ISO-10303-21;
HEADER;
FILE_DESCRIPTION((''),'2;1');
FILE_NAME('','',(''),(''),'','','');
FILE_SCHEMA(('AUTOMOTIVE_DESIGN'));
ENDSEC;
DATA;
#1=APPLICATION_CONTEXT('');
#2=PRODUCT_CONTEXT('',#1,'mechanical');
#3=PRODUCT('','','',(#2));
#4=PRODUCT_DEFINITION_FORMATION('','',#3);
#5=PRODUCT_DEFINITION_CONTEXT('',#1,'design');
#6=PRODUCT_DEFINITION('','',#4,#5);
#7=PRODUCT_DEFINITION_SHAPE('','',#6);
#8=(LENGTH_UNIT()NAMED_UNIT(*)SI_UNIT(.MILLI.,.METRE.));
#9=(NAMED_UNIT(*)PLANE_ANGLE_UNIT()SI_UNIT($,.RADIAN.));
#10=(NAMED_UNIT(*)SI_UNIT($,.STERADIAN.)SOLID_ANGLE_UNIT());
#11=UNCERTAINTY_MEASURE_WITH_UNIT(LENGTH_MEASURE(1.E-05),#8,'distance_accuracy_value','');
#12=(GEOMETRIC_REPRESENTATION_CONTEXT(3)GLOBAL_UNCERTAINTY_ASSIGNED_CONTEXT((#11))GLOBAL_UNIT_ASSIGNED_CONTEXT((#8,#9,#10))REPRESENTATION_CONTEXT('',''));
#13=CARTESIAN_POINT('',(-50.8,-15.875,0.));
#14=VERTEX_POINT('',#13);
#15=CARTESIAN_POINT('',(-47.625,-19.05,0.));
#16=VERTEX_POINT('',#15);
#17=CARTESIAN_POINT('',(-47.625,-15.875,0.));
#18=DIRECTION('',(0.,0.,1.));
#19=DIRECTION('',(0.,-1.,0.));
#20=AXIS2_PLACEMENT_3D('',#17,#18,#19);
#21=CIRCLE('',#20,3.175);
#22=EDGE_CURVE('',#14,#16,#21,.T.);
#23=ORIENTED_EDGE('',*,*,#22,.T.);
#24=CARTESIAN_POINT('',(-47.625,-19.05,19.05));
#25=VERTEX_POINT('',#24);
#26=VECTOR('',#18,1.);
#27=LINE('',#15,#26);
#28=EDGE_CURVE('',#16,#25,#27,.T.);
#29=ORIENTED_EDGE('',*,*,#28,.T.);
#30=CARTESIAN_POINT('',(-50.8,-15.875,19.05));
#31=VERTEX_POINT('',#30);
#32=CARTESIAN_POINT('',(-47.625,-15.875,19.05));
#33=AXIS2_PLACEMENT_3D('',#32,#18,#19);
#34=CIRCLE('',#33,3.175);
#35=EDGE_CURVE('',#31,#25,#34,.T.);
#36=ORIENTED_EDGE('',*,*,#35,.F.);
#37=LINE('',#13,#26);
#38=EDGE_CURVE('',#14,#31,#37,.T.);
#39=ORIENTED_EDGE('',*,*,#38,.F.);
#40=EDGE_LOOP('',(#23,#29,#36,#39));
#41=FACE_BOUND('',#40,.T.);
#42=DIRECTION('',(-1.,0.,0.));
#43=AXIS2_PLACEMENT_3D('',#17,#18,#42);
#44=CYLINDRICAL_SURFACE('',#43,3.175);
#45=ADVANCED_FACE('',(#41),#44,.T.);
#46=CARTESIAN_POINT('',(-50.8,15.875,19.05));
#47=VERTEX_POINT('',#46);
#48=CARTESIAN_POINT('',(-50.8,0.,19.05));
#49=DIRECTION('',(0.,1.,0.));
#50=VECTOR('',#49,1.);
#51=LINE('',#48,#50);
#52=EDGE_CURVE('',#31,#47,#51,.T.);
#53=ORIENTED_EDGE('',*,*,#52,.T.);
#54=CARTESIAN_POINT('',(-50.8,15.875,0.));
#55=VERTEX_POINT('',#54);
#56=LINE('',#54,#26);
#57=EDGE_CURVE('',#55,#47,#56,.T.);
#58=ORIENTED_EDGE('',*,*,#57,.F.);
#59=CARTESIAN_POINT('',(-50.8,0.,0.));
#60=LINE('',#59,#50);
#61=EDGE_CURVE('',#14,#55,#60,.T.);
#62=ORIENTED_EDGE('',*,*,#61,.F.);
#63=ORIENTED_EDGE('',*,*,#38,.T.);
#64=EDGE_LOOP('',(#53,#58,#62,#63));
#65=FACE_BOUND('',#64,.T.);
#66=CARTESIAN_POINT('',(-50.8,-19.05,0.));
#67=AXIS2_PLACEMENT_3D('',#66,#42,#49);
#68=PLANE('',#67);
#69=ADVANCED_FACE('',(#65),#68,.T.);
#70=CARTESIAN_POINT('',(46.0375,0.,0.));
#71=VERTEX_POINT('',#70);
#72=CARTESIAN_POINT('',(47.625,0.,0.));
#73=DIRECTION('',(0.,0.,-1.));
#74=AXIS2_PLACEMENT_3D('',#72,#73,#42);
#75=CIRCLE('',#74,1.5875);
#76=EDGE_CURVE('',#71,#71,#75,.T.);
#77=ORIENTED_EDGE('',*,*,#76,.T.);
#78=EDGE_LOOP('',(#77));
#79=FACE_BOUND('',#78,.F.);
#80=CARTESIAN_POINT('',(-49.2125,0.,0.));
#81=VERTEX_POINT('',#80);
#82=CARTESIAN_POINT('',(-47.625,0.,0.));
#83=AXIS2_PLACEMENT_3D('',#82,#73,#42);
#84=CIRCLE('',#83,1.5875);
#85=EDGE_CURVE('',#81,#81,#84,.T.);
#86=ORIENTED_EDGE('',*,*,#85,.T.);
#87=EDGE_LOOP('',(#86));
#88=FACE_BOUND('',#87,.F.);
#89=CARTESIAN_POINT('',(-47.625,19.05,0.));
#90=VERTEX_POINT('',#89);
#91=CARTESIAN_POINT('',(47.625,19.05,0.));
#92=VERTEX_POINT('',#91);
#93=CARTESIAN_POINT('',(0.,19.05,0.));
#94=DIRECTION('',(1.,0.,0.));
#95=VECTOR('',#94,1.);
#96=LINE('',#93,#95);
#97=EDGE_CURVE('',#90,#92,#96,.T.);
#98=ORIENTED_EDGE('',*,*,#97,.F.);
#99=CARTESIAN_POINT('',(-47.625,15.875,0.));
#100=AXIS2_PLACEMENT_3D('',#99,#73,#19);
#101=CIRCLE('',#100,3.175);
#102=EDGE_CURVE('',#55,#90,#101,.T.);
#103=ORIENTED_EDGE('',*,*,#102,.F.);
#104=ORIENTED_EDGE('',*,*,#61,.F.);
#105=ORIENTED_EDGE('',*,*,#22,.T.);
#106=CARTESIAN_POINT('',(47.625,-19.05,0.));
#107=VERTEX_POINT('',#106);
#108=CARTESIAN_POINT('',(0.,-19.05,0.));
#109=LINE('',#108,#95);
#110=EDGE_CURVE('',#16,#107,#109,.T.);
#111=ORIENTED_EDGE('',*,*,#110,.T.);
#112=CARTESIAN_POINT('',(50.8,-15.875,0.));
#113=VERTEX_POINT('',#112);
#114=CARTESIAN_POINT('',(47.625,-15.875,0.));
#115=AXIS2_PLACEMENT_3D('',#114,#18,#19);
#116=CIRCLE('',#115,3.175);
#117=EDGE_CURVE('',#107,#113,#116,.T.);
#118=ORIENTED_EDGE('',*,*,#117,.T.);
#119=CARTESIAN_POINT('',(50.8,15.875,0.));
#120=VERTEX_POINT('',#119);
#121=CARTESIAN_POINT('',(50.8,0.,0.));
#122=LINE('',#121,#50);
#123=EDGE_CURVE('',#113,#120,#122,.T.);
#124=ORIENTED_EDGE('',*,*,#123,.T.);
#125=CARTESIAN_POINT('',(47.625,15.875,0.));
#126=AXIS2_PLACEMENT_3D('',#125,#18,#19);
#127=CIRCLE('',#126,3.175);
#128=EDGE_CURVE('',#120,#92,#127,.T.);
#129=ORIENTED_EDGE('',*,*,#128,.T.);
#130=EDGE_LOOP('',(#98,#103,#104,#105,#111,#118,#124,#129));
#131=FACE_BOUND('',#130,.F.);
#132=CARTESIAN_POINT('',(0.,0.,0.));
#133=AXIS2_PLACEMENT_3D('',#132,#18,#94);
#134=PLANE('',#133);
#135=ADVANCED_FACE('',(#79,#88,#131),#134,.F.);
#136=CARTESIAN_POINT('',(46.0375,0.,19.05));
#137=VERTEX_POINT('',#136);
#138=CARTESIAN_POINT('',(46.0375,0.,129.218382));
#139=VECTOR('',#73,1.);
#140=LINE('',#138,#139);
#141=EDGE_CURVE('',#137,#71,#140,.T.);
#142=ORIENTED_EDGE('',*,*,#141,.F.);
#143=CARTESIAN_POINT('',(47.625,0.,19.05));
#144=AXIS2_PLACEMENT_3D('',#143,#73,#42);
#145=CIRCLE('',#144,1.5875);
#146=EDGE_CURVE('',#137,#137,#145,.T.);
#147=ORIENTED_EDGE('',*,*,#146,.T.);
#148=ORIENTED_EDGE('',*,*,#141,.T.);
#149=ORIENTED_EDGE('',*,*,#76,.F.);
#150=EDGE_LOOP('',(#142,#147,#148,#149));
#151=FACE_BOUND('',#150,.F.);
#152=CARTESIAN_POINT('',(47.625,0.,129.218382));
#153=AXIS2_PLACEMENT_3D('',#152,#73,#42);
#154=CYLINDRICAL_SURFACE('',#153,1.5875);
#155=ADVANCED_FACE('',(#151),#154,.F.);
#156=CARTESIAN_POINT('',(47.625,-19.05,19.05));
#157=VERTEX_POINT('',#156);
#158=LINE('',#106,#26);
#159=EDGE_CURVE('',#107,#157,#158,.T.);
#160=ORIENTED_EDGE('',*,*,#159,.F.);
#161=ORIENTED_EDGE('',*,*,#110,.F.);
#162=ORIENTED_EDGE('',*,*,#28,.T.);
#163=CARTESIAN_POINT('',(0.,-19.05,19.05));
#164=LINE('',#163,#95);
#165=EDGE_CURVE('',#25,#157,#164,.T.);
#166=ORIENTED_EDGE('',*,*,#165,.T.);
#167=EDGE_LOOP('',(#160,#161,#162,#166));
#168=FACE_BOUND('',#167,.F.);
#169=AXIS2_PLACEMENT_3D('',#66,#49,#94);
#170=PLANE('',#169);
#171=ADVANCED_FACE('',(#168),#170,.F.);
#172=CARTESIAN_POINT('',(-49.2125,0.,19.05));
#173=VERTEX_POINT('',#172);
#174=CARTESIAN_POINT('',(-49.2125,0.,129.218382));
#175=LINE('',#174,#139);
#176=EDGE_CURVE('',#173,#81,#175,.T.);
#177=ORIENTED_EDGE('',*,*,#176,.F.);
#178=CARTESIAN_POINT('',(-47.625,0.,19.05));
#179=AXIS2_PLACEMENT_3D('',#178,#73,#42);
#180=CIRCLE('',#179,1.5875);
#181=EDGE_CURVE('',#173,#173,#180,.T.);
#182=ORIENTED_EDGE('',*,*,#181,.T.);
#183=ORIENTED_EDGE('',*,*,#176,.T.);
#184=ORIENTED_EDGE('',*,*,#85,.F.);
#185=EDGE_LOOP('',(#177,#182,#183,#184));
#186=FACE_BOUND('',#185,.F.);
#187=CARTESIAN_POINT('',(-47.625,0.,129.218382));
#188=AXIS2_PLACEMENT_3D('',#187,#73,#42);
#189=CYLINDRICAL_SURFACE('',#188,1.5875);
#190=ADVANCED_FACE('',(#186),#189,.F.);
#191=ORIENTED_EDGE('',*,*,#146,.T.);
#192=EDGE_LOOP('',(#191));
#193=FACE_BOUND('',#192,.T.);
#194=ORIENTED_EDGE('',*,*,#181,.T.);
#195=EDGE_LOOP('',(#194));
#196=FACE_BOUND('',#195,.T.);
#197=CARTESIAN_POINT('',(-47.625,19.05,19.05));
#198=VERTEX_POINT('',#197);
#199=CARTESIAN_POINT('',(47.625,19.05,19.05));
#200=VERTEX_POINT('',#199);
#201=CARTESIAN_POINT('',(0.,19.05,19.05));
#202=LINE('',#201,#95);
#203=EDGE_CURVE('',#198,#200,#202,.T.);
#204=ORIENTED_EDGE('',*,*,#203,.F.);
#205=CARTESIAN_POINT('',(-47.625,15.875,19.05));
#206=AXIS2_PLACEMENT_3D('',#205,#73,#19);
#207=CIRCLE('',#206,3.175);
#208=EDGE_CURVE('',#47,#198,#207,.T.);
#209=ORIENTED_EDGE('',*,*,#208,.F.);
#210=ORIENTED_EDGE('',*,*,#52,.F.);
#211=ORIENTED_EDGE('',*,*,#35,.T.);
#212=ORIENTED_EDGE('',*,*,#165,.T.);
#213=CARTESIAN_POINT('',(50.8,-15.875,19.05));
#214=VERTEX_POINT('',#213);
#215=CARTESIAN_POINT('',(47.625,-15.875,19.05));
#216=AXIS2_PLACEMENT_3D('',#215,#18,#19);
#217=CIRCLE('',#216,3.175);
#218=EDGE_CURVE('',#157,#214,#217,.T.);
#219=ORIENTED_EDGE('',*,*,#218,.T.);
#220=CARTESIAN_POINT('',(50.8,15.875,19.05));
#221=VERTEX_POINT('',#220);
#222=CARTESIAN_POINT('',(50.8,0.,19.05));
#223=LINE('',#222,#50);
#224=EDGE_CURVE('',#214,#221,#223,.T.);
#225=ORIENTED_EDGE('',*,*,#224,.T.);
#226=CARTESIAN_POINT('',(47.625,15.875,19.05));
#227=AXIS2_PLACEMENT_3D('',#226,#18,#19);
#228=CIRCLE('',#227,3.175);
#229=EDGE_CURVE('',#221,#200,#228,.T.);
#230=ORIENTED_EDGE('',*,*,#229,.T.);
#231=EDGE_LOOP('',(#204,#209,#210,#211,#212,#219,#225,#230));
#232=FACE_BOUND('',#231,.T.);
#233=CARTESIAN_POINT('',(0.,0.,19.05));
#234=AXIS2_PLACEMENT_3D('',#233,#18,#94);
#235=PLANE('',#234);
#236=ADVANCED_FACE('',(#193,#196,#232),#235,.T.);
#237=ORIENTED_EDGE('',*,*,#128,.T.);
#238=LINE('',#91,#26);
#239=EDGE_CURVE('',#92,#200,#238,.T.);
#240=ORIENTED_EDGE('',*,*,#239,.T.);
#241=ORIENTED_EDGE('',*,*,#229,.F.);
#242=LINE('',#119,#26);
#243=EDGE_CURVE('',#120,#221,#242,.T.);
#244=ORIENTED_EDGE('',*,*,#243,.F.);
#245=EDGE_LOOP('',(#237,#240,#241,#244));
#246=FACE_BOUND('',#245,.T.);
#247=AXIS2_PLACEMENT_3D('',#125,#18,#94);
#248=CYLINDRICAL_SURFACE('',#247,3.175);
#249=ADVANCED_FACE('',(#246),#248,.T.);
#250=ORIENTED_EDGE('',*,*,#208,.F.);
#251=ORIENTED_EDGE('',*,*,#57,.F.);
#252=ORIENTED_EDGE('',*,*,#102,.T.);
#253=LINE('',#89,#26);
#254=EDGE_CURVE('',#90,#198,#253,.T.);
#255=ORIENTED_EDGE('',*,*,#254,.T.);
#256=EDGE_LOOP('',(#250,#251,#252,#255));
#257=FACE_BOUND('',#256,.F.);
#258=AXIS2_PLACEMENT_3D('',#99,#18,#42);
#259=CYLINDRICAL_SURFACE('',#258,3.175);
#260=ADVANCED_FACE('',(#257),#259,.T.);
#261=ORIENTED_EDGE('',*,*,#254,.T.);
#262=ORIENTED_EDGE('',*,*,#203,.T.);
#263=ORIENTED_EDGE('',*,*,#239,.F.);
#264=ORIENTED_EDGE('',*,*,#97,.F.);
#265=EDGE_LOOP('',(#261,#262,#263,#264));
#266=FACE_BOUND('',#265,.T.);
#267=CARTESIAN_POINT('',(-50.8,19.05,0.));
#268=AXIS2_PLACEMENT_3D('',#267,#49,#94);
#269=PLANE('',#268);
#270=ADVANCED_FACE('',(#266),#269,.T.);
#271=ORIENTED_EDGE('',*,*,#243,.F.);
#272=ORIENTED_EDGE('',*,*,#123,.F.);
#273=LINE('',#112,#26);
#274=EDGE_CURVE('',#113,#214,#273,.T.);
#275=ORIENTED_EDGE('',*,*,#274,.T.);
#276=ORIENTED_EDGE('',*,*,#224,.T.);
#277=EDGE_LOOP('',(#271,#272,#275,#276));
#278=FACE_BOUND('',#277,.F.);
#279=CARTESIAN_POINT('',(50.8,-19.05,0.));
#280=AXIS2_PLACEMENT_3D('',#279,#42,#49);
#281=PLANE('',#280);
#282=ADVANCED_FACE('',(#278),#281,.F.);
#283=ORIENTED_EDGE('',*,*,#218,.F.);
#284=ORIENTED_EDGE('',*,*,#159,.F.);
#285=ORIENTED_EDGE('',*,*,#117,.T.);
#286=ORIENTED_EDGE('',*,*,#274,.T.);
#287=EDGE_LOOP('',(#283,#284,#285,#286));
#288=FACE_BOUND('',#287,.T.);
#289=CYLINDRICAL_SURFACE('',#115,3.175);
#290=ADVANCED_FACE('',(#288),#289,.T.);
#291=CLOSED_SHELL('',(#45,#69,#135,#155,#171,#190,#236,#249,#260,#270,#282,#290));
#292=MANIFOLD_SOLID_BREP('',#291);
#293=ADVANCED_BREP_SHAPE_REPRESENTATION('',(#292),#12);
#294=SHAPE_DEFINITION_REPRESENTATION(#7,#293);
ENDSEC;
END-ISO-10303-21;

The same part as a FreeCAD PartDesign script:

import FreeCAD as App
import Part
import Sketcher

V = App.Vector
Q = App.Units.Quantity


def edges_at(feature, points):
    """Names of the edges that pass closest to the given points."""
    edges = feature.Shape.Edges
    near = lambda p: min(range(len(edges)), key=lambda i: edges[i].distToShape(Part.Vertex(*p))[0])
    return sorted({f"Edge{near(p) + 1}" for p in points})


def add_polygon(sketch, points):
    """Adds a closed chain of lines whose ends are joined by coincident constraints."""
    first, n = sketch.GeometryCount, len(points)
    for a, b in zip(points, points[1:] + points[:1]):
        sketch.addGeometry(Part.LineSegment(App.Vector(*a, 0), App.Vector(*b, 0)), False)
    for i in range(n):
        sketch.addConstraint(Sketcher.Constraint("Coincident", first + i, 2, first + (i + 1) % n, 1))

doc = App.newDocument("Part")
body = doc.addObject("PartDesign::Body", "Body")

# Sketch on XY plane
sketch1 = body.newObject("Sketcher::SketchObject", "Sketch")
sketch1.AttachmentSupport = (doc.getObject("XY_Plane"), [""])
sketch1.MapMode = "FlatFace"
add_polygon(sketch1, [(-50.8, 19.05), (-50.8, -19.05), (50.8, -19.05), (50.8, 19.05)])  # lines 0-3
sketch1.addConstraint(Sketcher.Constraint("Vertical", 0))
sketch1.addConstraint(Sketcher.Constraint("Horizontal", 1))
sketch1.addConstraint(Sketcher.Constraint("Vertical", 2))
sketch1.addConstraint(Sketcher.Constraint("Horizontal", 3))
sketch1.addConstraint(Sketcher.Constraint("Symmetric", 0, 2, 2, 2, -1, 1))
sketch1.addConstraint(Sketcher.Constraint("DistanceX", 1, 1, 1, 2, Q("4 in")))
sketch1.addConstraint(Sketcher.Constraint("DistanceY", 0, 2, 0, 1, Q("1.5 in")))
pad1 = body.newObject("PartDesign::Pad", "Pad")
pad1.Profile = sketch1
pad1.Length = Q("0.75 in")
doc.recompute()

fillet = body.newObject("PartDesign::Fillet", "Fillet")
fillet.Base = (pad1, edges_at(pad1, [
    (-50.8, 19.05, 9.525),
    (-50.8, -19.05, 9.525),
    (50.8, 19.05, 9.525),
    (50.8, -19.05, 9.525),
]))
fillet.Radius = Q("0.125 in")

# Sketch on XY plane
sketch2 = body.newObject("Sketcher::SketchObject", "Sketch001")
sketch2.AttachmentSupport = (doc.getObject("XY_Plane"), [""])
sketch2.MapMode = "FlatFace"
sketch2.AttachmentOffset = App.Placement(V(0, 0, 0.75 * 25.4), App.Rotation())
sketch2.addGeometry(Part.Circle(V(-47.625, 0, 0), V(0, 0, 1), 1.5875), False)
sketch2.addGeometry(Part.Circle(V(47.625, 0, 0), V(0, 0, 1), 1.5875), False)
sketch2.addConstraint(Sketcher.Constraint("Equal", 0, 1))
sketch2.addConstraint(Sketcher.Constraint("Symmetric", 0, 3, 1, 3, -1, 1))
sketch2.addConstraint(Sketcher.Constraint("PointOnObject", 0, 3, -1))
sketch2.addConstraint(Sketcher.Constraint("Diameter", 0, Q("0.125 in")))
sketch2.addConstraint(Sketcher.Constraint("DistanceX", 0, 3, 1, 3, Q("3.75 in")))
doc.recompute()
hole = body.newObject("PartDesign::Hole", "Hole")
hole.Profile = sketch2
hole.ThreadType = "None"
hole.Diameter = Q("0.125 in")
hole.DepthType = "ThroughAll"

doc.recompute()
